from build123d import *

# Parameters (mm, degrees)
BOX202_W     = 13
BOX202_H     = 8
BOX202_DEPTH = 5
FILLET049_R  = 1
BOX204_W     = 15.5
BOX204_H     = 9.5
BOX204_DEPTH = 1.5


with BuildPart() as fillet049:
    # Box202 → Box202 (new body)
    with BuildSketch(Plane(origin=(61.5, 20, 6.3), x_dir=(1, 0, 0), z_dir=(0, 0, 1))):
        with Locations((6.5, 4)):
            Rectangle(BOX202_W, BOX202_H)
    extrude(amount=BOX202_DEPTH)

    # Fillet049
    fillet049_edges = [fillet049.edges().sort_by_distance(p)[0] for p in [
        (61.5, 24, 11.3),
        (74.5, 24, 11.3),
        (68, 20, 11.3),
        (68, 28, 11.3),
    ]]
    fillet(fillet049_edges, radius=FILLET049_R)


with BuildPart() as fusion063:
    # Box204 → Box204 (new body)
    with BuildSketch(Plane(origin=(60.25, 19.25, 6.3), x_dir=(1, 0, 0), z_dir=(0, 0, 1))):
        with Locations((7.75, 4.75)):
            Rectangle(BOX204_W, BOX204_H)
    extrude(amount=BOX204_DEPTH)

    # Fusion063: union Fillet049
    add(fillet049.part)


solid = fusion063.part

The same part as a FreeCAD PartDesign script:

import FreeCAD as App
import Part
import Sketcher
from FreeCAD import Vector
Q = App.Units.Quantity


def edges_at(feature, points):
    """Names of the edges that pass closest to the given points."""
    edges = feature.Shape.Edges
    near = lambda p: min(range(len(edges)), key=lambda i: edges[i].distToShape(Part.Vertex(*p))[0])
    return sorted({f"Edge{near(p) + 1}" for p in points})

doc = App.newDocument("Part")
body = doc.addObject("PartDesign::Body", "Body")

# Sketch on XY plane
sketch1 = body.newObject("Sketcher::SketchObject", "Sketch")
sketch1.AttachmentSupport = (doc.getObject("XY_Plane"), [""])
sketch1.MapMode = "FlatFace"
sketch1.AttachmentOffset = App.Placement(Vector(0, 0, 6.3), App.Rotation())
sketch1.addGeometry([
    Part.LineSegment(Vector(62, 28, 0), Vector(62, 20, 0)),
    Part.LineSegment(Vector(62, 20, 0), Vector(74, 20, 0)),
    Part.LineSegment(Vector(74, 20, 0), Vector(74, 28, 0)),
    Part.LineSegment(Vector(74, 28, 0), Vector(62, 28, 0)),
], False)
sketch1.addConstraint([
    Sketcher.Constraint("Coincident", 0, 2, 1, 1),
    Sketcher.Constraint("Coincident", 1, 2, 2, 1),
    Sketcher.Constraint("Coincident", 2, 2, 3, 1),
    Sketcher.Constraint("Coincident", 3, 2, 0, 1),
    Sketcher.Constraint("Vertical", 0),
    Sketcher.Constraint("Horizontal", 1),
    Sketcher.Constraint("Vertical", 2),
    Sketcher.Constraint("Horizontal", 3),
    Sketcher.Constraint("DistanceX", 1, 1, 1, 2, Q("13 mm")),
    Sketcher.Constraint("DistanceY", 0, 2, 0, 1, Q("8 mm")),
    Sketcher.Constraint("DistanceY", -1, 1, 0, 2, Q("20 mm")),
    Sketcher.Constraint("DistanceX", -1, 1, 0, 2, Q("61.5 mm")),
])
pad1 = body.newObject("PartDesign::Pad", "Pad")
pad1.Profile = sketch1
pad1.Length = 5
doc.recompute()

fillet = body.newObject("PartDesign::Fillet", "Fillet")
fillet.Base = (pad1, edges_at(pad1, [
    (61.5, 24, 11.3),
    (74.5, 24, 11.3),
    (68, 20, 11.3),
    (68, 28, 11.3),
]))
fillet.Radius = 1
body2 = doc.addObject("PartDesign::Body", "Body001")

# Sketch on XY plane
sketch2 = body2.newObject("Sketcher::SketchObject", "Sketch001")
sketch2.AttachmentSupport = (doc.getObject("XY_Plane001"), [""])
sketch2.MapMode = "FlatFace"
sketch2.AttachmentOffset = App.Placement(Vector(0, 0, 6.3), App.Rotation())
sketch2.addGeometry([
    Part.LineSegment(Vector(60, 29, 0), Vector(60, 19, 0)),
    Part.LineSegment(Vector(60, 19, 0), Vector(76, 19, 0)),
    Part.LineSegment(Vector(76, 19, 0), Vector(76, 29, 0)),
    Part.LineSegment(Vector(76, 29, 0), Vector(60, 29, 0)),
], False)
sketch2.addConstraint([
    Sketcher.Constraint("Coincident", 0, 2, 1, 1),
    Sketcher.Constraint("Coincident", 1, 2, 2, 1),
    Sketcher.Constraint("Coincident", 2, 2, 3, 1),
    Sketcher.Constraint("Coincident", 3, 2, 0, 1),
    Sketcher.Constraint("Vertical", 0),
    Sketcher.Constraint("Horizontal", 1),
    Sketcher.Constraint("Vertical", 2),
    Sketcher.Constraint("Horizontal", 3),
    Sketcher.Constraint("DistanceX", 1, 1, 1, 2, Q("15.5 mm")),
    Sketcher.Constraint("DistanceY", 0, 2, 0, 1, Q("9.5 mm")),
    Sketcher.Constraint("DistanceX", -1, 1, 0, 2, Q("60.25 mm")),
    Sketcher.Constraint("DistanceY", -1, 1, 0, 2, Q("19.25 mm")),
])
pad2 = body2.newObject("PartDesign::Pad", "Pad001")
pad2.Profile = sketch2
pad2.Length = 1.5
doc.recompute()

boolean = body2.newObject("PartDesign::Boolean", "Boolean")
boolean.Type = "Fuse"
boolean.addObjects([body])

doc.recompute()
